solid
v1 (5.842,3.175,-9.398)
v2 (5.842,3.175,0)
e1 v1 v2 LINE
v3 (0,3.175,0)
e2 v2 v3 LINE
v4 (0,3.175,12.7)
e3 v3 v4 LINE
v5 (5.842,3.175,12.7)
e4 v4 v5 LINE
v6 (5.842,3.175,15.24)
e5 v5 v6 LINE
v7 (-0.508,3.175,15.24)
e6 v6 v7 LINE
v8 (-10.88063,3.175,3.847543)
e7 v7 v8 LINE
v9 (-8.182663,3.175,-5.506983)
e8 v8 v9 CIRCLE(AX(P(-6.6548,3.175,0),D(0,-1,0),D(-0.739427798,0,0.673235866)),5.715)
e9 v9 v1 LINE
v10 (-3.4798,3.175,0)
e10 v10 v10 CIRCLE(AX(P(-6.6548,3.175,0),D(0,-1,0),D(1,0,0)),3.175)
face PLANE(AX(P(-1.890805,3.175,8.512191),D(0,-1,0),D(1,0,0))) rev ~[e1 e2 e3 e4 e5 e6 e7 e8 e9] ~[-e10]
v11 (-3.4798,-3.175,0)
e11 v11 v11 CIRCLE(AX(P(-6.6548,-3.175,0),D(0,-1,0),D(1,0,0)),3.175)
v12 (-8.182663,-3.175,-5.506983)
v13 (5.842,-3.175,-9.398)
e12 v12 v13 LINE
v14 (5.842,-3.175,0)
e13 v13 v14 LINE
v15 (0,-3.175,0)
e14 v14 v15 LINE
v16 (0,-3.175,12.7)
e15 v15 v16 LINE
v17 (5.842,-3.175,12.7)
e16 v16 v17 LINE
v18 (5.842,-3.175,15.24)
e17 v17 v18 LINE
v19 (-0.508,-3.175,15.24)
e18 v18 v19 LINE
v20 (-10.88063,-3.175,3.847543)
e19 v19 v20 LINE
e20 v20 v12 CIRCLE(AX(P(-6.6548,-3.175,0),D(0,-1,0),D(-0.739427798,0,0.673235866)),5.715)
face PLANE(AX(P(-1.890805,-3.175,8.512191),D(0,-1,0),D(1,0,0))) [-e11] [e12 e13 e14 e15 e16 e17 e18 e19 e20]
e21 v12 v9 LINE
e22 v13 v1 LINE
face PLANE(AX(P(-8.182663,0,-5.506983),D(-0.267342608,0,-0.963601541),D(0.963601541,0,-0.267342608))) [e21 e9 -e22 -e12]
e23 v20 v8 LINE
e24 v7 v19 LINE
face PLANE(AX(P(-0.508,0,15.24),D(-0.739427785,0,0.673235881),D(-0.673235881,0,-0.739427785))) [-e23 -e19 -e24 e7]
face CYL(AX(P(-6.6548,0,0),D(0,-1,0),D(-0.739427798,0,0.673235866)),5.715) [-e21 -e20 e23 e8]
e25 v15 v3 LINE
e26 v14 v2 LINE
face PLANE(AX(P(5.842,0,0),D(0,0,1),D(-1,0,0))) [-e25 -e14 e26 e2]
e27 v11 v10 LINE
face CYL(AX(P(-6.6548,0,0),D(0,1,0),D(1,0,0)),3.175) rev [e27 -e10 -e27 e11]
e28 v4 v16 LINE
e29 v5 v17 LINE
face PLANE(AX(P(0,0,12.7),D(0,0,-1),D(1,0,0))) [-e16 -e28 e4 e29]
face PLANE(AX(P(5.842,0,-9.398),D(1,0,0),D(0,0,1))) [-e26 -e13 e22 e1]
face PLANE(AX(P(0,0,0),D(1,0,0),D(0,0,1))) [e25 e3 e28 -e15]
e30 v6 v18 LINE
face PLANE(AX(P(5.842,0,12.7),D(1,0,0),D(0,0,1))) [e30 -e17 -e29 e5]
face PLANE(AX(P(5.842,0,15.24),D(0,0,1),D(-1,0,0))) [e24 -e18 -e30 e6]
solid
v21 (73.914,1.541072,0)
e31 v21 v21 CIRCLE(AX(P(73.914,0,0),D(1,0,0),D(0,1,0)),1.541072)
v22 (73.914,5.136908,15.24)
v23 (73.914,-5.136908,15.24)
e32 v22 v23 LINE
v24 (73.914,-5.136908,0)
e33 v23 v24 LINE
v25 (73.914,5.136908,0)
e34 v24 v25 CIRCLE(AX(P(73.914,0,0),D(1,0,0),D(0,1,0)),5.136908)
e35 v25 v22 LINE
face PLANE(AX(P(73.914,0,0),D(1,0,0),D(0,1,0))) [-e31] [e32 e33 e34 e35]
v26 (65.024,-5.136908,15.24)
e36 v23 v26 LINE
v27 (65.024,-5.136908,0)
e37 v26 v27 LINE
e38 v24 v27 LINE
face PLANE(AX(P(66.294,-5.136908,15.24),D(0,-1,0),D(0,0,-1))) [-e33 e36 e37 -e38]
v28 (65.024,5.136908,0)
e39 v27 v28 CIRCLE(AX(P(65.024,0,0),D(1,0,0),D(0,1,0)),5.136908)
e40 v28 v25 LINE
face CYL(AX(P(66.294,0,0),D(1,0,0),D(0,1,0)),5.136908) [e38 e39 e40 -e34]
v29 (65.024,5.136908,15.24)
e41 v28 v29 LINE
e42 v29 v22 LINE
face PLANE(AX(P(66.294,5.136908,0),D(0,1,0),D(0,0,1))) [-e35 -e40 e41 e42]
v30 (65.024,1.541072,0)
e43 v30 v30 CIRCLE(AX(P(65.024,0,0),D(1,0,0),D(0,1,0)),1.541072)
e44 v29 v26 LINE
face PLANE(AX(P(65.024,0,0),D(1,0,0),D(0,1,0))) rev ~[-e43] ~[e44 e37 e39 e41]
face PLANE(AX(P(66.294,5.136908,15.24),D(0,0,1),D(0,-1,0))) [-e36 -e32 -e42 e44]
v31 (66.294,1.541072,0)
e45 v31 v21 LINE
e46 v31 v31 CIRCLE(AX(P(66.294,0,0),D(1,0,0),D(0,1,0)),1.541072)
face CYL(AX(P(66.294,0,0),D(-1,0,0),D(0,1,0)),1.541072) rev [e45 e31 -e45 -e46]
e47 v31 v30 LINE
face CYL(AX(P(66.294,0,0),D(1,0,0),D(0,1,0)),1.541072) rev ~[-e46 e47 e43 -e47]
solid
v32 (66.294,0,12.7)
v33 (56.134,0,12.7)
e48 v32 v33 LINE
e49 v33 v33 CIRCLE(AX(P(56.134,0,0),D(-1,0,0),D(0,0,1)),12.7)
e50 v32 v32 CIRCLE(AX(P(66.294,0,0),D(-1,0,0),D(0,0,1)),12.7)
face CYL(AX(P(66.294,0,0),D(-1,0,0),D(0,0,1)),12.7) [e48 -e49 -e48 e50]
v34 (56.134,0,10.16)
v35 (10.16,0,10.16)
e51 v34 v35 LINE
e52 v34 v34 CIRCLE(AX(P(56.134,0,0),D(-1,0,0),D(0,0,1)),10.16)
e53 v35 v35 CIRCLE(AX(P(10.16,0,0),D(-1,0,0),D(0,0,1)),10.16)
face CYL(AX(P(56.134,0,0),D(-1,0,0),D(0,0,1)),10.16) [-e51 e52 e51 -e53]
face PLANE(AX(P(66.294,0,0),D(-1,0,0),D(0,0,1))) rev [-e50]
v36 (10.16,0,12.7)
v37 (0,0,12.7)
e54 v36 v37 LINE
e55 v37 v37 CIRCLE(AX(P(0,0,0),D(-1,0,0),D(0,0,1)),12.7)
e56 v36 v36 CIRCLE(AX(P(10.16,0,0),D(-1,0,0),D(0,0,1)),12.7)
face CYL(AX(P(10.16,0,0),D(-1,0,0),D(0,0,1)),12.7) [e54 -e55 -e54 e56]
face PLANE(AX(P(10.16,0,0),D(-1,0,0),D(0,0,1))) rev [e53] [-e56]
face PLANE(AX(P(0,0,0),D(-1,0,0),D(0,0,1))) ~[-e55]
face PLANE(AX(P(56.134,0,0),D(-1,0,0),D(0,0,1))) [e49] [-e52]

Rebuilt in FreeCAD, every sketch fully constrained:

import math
import FreeCAD as App
import Part
import Sketcher

V = App.Vector
Q = App.Units.Quantity


def add_polygon(sketch, points):
    """Adds a closed chain of lines whose ends are joined by coincident constraints."""
    first, n = sketch.GeometryCount, len(points)
    for a, b in zip(points, points[1:] + points[:1]):
        sketch.addGeometry(Part.LineSegment(App.Vector(*a, 0), App.Vector(*b, 0)), False)
    for i in range(n):
        sketch.addConstraint(Sketcher.Constraint("Coincident", first + i, 2, first + (i + 1) % n, 1))

doc = App.newDocument("Part")
body = doc.addObject("PartDesign::Body", "Body")

# Sketch on XZ plane
sketch1 = body.newObject("Sketcher::SketchObject", "Sketch")
sketch1.AttachmentSupport = (doc.getObject("XZ_Plane"), [""])
sketch1.MapMode = "FlatFace"
add_polygon(sketch1, [(66.294, 0), (66.294, 12.7), (56.134, 12.7), (56.134, 10.16), (10.16, 10.16), (10.16, 12.7), (0, 12.7), (0, 0)])  # lines 0-7
sketch1.addConstraint([
    Sketcher.Constraint("Vertical", 0),
    Sketcher.Constraint("Horizontal", 1),
    Sketcher.Constraint("Vertical", 2),
    Sketcher.Constraint("Horizontal", 3),
    Sketcher.Constraint("Vertical", 4),
    Sketcher.Constraint("Horizontal", 5),
    Sketcher.Constraint("Vertical", 6),
    Sketcher.Constraint("Horizontal", 7),
    Sketcher.Constraint("Coincident", 6, 2, -1, 1),
    Sketcher.Constraint("Horizontal", 1, 2, 4, 2),
    Sketcher.Constraint("Equal", 1, 5),
    Sketcher.Constraint("DistanceX", 1, 2, 1, 1, Q("0.4 in")),
    Sketcher.Constraint("DistanceY", 0, 1, 0, 2, Q("0.5 in")),
    Sketcher.Constraint("DistanceY", 2, 2, 2, 1, Q("0.1 in")),
    Sketcher.Constraint("DistanceX", 3, 2, 3, 1, Q("1.81 in")),
])
revolution = body.newObject("PartDesign::Revolution", "Revolution")
revolution.Profile = sketch1
revolution.ReferenceAxis = (sketch1, ["H_Axis"])
revolution.Angle = 360
body2 = doc.addObject("PartDesign::Body", "Body001")

# Sketch on XZ plane
sketch2 = body2.newObject("Sketcher::SketchObject", "Sketch001")
sketch2.AttachmentSupport = (doc.getObject("XZ_Plane001"), [""])
sketch2.MapMode = "FlatFace"
sketch2.addGeometry([
    Part.LineSegment(V(0, 0, 0), V(0, 12.7, 0)),  # 0
    Part.LineSegment(V(0, 12.7, 0), V(5.842, 12.7, 0)),  # 1
    Part.LineSegment(V(5.842, 12.7, 0), V(5.842, 15.24, 0)),  # 2
    Part.LineSegment(V(5.842, 15.24, 0), V(-0.508, 15.24, 0)),  # 3
    Part.LineSegment(V(-0.508, 15.24, 0), V(-10.88063, 3.847543, 0)),  # 4
    Part.ArcOfCircle(Part.Circle(V(-6.6548, 0, 0), V(0, 0, 1), 5.715), math.radians(137.682696), math.radians(254.493803)),  # 5
    Part.LineSegment(V(-8.182663, -5.506983, 0), V(5.842, -9.398, 0)),  # 6
    Part.LineSegment(V(5.842, -9.398, 0), V(5.842, 0, 0)),  # 7
    Part.LineSegment(V(5.842, 0, 0), V(0, 0, 0)),  # 8
    Part.Circle(V(-6.6548, 0, 0), V(0, 0, 1), 3.175),  # 9
], False)
sketch2.addConstraint([
    Sketcher.Constraint("Coincident", 0, 2, 1, 1),
    Sketcher.Constraint("Coincident", 1, 2, 2, 1),
    Sketcher.Constraint("Coincident", 2, 2, 3, 1),
    Sketcher.Constraint("Coincident", 3, 2, 4, 1),
    Sketcher.Constraint("Tangent", 4, 2, 5, 1),
    Sketcher.Constraint("Tangent", 5, 2, 6, 1),
    Sketcher.Constraint("Coincident", 6, 2, 7, 1),
    Sketcher.Constraint("Coincident", 7, 2, 8, 1),
    Sketcher.Constraint("Coincident", 8, 2, 0, 1),
    Sketcher.Constraint("Vertical", 0),
    Sketcher.Constraint("Horizontal", 1),
    Sketcher.Constraint("Vertical", 2),
    Sketcher.Constraint("Horizontal", 3),
    Sketcher.Constraint("Vertical", 7),
    Sketcher.Constraint("Horizontal", 8),
    Sketcher.Constraint("Coincident", 8, 2, -1, 1),
    Sketcher.Constraint("Coincident", 9, 3, 5, 3),
    Sketcher.Constraint("PointOnObject", 5, 3, -1),
    Sketcher.Constraint("Vertical", 2, 2, 6, 2),
    Sketcher.Constraint("Diameter", 9, Q("0.25 in")),
    Sketcher.Constraint("DistanceY", 0, 1, 0, 2, Q("0.5 in")),
    Sketcher.Constraint("DistanceY", 2, 1, 2, 2, Q("0.1 in")),
    Sketcher.Constraint("Radius", 5, Q("0.225 in")),
    Sketcher.Constraint("DistanceX", 1, 1, 1, 2, Q("0.23 in")),
    Sketcher.Constraint("DistanceX", 3, 2, 3, 1, Q("0.25 in")),
    Sketcher.Constraint("DistanceY", 7, 1, 7, 2, Q("0.37 in")),
    Sketcher.Constraint("DistanceX", 5, 3, -1, 1, Q("0.262 in")),
])
pad1 = body2.newObject("PartDesign::Pad", "Pad")
pad1.Profile = sketch2
pad1.Length = Q("0.25 in")
pad1.Midplane = True
body3 = doc.addObject("PartDesign::Body", "Body002")

# Sketch on YZ plane
sketch3 = body3.newObject("Sketcher::SketchObject", "Sketch002")
sketch3.AttachmentSupport = (doc.getObject("YZ_Plane002"), [""])
sketch3.MapMode = "FlatFace"
sketch3.AttachmentOffset = App.Placement(V(0, 0, 2.61 * 25.4), App.Rotation())
sketch3.addGeometry([
    Part.ArcOfCircle(Part.Circle(V(0, 0, 0), V(0, 0, 1), 5.136908), math.radians(180), math.radians(360)),  # 0
    Part.LineSegment(V(5.136908, 0, 0), V(5.136908, 15.24, 0)),  # 1
    Part.LineSegment(V(5.136908, 15.24, 0), V(-5.136908, 15.24, 0)),  # 2
    Part.LineSegment(V(-5.136908, 15.24, 0), V(-5.136908, 0, 0)),  # 3
    Part.Circle(V(0, 0, 0), V(0, 0, 1), 1.541072),  # 4
], False)
sketch3.addConstraint([
    Sketcher.Constraint("Tangent", 0, 2, 1, 1),
    Sketcher.Constraint("Coincident", 1, 2, 2, 1),
    Sketcher.Constraint("Coincident", 2, 2, 3, 1),
    Sketcher.Constraint("Tangent", 3, 2, 0, 1),
    Sketcher.Constraint("Vertical", 1),
    Sketcher.Constraint("Horizontal", 2),
    Sketcher.Constraint("Vertical", 3),
    Sketcher.Constraint("Coincident", 0, 3, -1, 1),
    Sketcher.Constraint("Coincident", 4, 3, -1, 1),
    Sketcher.Constraint("DistanceY", 1, 1, 1, 2, Q("0.6 in")),
    Sketcher.Constraint("Diameter", 4, Q("3.082144 mm")),
    Sketcher.Constraint("Radius", 0, Q("5.136908 mm")),
])
pad2 = body3.newObject("PartDesign::Pad", "Pad001")
pad2.Profile = sketch3
pad2.Type = "TwoLengths"
pad2.Length = Q("0.3 in")
pad2.Length2 = Q("0.05 in")

doc.recompute()
